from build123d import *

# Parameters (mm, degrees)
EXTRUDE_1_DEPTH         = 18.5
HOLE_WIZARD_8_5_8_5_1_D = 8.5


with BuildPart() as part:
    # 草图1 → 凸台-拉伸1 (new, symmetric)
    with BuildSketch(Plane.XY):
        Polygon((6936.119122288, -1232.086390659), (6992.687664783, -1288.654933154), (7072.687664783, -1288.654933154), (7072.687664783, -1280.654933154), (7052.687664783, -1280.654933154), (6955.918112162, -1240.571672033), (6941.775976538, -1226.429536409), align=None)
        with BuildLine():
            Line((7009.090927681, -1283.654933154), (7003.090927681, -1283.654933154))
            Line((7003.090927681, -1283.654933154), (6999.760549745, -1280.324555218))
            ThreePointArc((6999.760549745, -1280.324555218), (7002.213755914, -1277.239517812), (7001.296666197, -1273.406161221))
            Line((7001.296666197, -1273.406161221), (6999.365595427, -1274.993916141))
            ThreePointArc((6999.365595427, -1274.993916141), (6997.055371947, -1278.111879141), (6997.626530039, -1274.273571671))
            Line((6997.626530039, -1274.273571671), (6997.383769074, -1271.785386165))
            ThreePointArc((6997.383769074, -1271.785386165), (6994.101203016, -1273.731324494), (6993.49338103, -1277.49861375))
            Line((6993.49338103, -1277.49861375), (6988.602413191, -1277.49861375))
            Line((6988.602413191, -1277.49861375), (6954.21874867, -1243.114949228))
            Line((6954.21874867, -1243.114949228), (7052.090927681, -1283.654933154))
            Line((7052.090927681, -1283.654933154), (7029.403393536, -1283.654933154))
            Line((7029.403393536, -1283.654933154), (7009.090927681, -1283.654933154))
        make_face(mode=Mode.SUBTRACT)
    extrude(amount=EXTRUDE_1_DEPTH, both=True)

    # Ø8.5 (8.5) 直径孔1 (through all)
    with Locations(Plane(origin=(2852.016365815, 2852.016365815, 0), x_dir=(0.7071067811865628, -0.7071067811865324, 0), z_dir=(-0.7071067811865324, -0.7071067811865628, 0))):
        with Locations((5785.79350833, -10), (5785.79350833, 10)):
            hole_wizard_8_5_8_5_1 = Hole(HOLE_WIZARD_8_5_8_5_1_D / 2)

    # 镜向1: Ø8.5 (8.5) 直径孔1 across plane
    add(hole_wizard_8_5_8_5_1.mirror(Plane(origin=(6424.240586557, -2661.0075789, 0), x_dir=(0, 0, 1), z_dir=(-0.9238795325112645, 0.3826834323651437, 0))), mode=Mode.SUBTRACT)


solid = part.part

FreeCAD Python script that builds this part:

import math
import FreeCAD as App
import Part
import Sketcher
Q = App.Units.Quantity

doc = App.newDocument("Part")
body = doc.addObject("PartDesign::Body", "Body")

# Sketch on XY plane
sketch1 = doc.addObject("Sketcher::SketchObject", "Sketch")
body.addObject(sketch1)
sketch1.AttachmentSupport = (doc.XY_Plane, [""])
sketch1.MapMode = "FlatFace"
sketch1.addGeometry([
    Part.LineSegment(App.Vector(6936.119122, -1232.086391, 0), App.Vector(6992.687665, -1288.654933, 0)),  # 0
    Part.LineSegment(App.Vector(6992.687665, -1288.654933, 0), App.Vector(7072.687665, -1288.654933, 0)),  # 1
    Part.LineSegment(App.Vector(7072.687665, -1288.654933, 0), App.Vector(7072.687665, -1280.654933, 0)),  # 2
    Part.LineSegment(App.Vector(7072.687665, -1280.654933, 0), App.Vector(7052.687665, -1280.654933, 0)),  # 3
    Part.LineSegment(App.Vector(7052.687665, -1280.654933, 0), App.Vector(6955.918112, -1240.571672, 0)),  # 4
    Part.LineSegment(App.Vector(6955.918112, -1240.571672, 0), App.Vector(6941.775977, -1226.429536, 0)),  # 5
    Part.LineSegment(App.Vector(6941.775977, -1226.429536, 0), App.Vector(6936.119122, -1232.086391, 0)),  # 6
    Part.LineSegment(App.Vector(7052.090928, -1283.654933, 0), App.Vector(7003.090928, -1283.654933, 0)),  # 7
    Part.LineSegment(App.Vector(7003.090928, -1283.654933, 0), App.Vector(6999.76055, -1280.324555, 0)),  # 8
    Part.ArcOfCircle(Part.Circle(App.Vector(6997.820739, -1276.26412, 0), App.Vector(0, 0, 1), 4.5), math.radians(-64.464573), math.radians(39.427548)),  # 9
    Part.LineSegment(App.Vector(7001.296666, -1273.406161, 0), App.Vector(6999.365595, -1274.993916, 0)),  # 10
    Part.ArcOfCircle(Part.Circle(App.Vector(6997.820739, -1276.26412, 0), App.Vector(0, 0, 1), 2), math.radians(95.572452), math.radians(399.427548)),  # 11
    Part.LineSegment(App.Vector(6997.62653, -1274.273572, 0), App.Vector(6997.383769, -1271.785386, 0)),  # 12
    Part.ArcOfCircle(Part.Circle(App.Vector(6997.820739, -1276.26412, 0), App.Vector(0, 0, 1), 4.5), math.radians(95.572452), math.radians(195.922205)),  # 13
    Part.LineSegment(App.Vector(6993.493381, -1277.498614, 0), App.Vector(6988.602413, -1277.498614, 0)),  # 14
    Part.LineSegment(App.Vector(6988.602413, -1277.498614, 0), App.Vector(6954.218749, -1243.114949, 0)),  # 15
    Part.LineSegment(App.Vector(6954.218749, -1243.114949, 0), App.Vector(7052.090928, -1283.654933, 0)),  # 16
], False)
sketch1.addConstraint([
    Sketcher.Constraint("Coincident", 0, 2, 1, 1),
    Sketcher.Constraint("Coincident", 1, 2, 2, 1),
    Sketcher.Constraint("Coincident", 2, 2, 3, 1),
    Sketcher.Constraint("Coincident", 3, 2, 4, 1),
    Sketcher.Constraint("Coincident", 4, 2, 5, 1),
    Sketcher.Constraint("Coincident", 5, 2, 6, 1),
    Sketcher.Constraint("Coincident", 6, 2, 0, 1),
    Sketcher.Constraint("Coincident", 7, 2, 8, 1),
    Sketcher.Constraint("Coincident", 8, 2, 9, 1),
    Sketcher.Constraint("Coincident", 9, 2, 10, 1),
    Sketcher.Constraint("Coincident", 10, 2, 11, 2),
    Sketcher.Constraint("Coincident", 11, 1, 12, 1),
    Sketcher.Constraint("Coincident", 12, 2, 13, 1),
    Sketcher.Constraint("Coincident", 13, 2, 14, 1),
    Sketcher.Constraint("Coincident", 14, 2, 15, 1),
    Sketcher.Constraint("Coincident", 15, 2, 16, 1),
    Sketcher.Constraint("Coincident", 16, 2, 7, 1),
    Sketcher.Constraint("Horizontal", 1),
    Sketcher.Constraint("Vertical", 2),
    Sketcher.Constraint("Horizontal", 3),
    Sketcher.Constraint("Horizontal", 7),
    Sketcher.Constraint("Horizontal", 14),
    Sketcher.Constraint("Coincident", 11, 3, 9, 3),
    Sketcher.Constraint("Coincident", 13, 3, 9, 3),
    Sketcher.Constraint("Equal", 9, 13),
    Sketcher.Constraint("Parallel", 0, 5),
    Sketcher.Constraint("Perpendicular", 5, 6),
    Sketcher.Constraint("Perpendicular", 6, 8),
    Sketcher.Constraint("Parallel", 8, 15),
    Sketcher.Constraint("Parallel", 4, 16),
    Sketcher.Constraint("Radius", 11, 2.0),
    Sketcher.Constraint("Radius", 9, 4.5),
    Sketcher.Constraint("DistanceX", 1, 1, 1, 2, 80.0),
    Sketcher.Constraint("DistanceX", 3, 2, 3, 1, 20.0),
    Sketcher.Constraint("DistanceX", 7, 2, 7, 1, 49.0),
    Sketcher.Constraint("DistanceY", 2, 1, 2, 2, 8.0),
    Sketcher.Constraint("Angle", 0, Q("-45 deg")),
    Sketcher.Constraint("Distance", 0, 80.0),
    Sketcher.Constraint("Distance", 5, 20.0),
    Sketcher.Constraint("Distance", 6, 8.0),
    Sketcher.Constraint("DistanceY", 0, 2, 7, 2, 5.0),
    Sketcher.Constraint("DistanceX", 14, 2, 14, 1, 4.890968),
    Sketcher.Constraint("DistanceX", -1, 1, 9, 3, 6997.820739),
    Sketcher.Constraint("DistanceY", 9, 3, -1, 1, 1276.26412),
    Sketcher.Constraint("DistanceY", 6, 2, -1, 1, 1232.086391),
    Sketcher.Constraint("DistanceX", -1, 1, 8, 2, 6999.76055),
    Sketcher.Constraint("DistanceY", 9, 2, -1, 1, 1273.406161),
    Sketcher.Constraint("DistanceX", -1, 1, 11, 1, 6997.62653),
    Sketcher.Constraint("DistanceX", -1, 1, 12, 2, 6997.383769),
    Sketcher.Constraint("DistanceX", -1, 1, 13, 2, 6993.493381),
    Sketcher.Constraint("DistanceX", 10, 2, 9, 2, 1.931071),
    Sketcher.Constraint("DistanceX", -1, 1, 0, 2, 6992.687665),
])
pad1 = doc.addObject("PartDesign::Pad", "Pad")
body.addObject(pad1)
pad1.Profile = sketch1
pad1.Length = 37
pad1.Midplane = True

# Sketch on an angled plane
sketch2 = doc.addObject("Sketcher::SketchObject", "Sketch001")
body.addObject(sketch2)
sketch2.Placement = App.Placement(App.Vector(2852.016366, 2852.016366, 0), App.Rotation(App.Vector(0.707106781, -0.707106781, 0), App.Vector(0, 0, 0.999999999), App.Vector(-0.707106781, -0.707106781, 0), "ZXY"))
sketch2.addGeometry([
    Part.Circle(App.Vector(5785.793505, -10, 0), App.Vector(0, 0, 1), 4.25),
    Part.Circle(App.Vector(5785.793505, 10, 0), App.Vector(0, 0, 1), 4.25),
], False)
sketch2.addConstraint([
    Sketcher.Constraint("Equal", 0, 1),
    Sketcher.Constraint("Symmetric", 0, 3, 1, 3, -1),
    Sketcher.Constraint("Diameter", 0, 8.5),
    Sketcher.Constraint("DistanceY", 0, 3, -1, 1, 10.0),
    Sketcher.Constraint("DistanceX", -1, 1, 0, 3, 5785.793505),
])
doc.recompute()
hole = doc.addObject("PartDesign::Hole", "Hole")
body.addObject(hole)
hole.Profile = sketch2
hole.ThreadType = "None"
hole.Diameter = 8.5
hole.DepthType = "ThroughAll"
doc.recompute()

datumplane = doc.addObject("PartDesign::Plane", "DatumPlane")
body.addObject(datumplane)
datumplane.Placement = App.Placement(App.Vector(6424.240592, -2661.007577, 0), App.Rotation(App.Vector(0.382683432, 0.923879533, 0), App.Vector(0, 0, -1), App.Vector(-0.923879533, 0.382683432, 0), "ZXY"))
mirrored = doc.addObject("PartDesign::Mirrored", "Mirrored")
body.addObject(mirrored)
mirrored.Originals = [hole]
mirrored.MirrorPlane = (datumplane, [""])
body.Tip = mirrored

doc.recompute()
